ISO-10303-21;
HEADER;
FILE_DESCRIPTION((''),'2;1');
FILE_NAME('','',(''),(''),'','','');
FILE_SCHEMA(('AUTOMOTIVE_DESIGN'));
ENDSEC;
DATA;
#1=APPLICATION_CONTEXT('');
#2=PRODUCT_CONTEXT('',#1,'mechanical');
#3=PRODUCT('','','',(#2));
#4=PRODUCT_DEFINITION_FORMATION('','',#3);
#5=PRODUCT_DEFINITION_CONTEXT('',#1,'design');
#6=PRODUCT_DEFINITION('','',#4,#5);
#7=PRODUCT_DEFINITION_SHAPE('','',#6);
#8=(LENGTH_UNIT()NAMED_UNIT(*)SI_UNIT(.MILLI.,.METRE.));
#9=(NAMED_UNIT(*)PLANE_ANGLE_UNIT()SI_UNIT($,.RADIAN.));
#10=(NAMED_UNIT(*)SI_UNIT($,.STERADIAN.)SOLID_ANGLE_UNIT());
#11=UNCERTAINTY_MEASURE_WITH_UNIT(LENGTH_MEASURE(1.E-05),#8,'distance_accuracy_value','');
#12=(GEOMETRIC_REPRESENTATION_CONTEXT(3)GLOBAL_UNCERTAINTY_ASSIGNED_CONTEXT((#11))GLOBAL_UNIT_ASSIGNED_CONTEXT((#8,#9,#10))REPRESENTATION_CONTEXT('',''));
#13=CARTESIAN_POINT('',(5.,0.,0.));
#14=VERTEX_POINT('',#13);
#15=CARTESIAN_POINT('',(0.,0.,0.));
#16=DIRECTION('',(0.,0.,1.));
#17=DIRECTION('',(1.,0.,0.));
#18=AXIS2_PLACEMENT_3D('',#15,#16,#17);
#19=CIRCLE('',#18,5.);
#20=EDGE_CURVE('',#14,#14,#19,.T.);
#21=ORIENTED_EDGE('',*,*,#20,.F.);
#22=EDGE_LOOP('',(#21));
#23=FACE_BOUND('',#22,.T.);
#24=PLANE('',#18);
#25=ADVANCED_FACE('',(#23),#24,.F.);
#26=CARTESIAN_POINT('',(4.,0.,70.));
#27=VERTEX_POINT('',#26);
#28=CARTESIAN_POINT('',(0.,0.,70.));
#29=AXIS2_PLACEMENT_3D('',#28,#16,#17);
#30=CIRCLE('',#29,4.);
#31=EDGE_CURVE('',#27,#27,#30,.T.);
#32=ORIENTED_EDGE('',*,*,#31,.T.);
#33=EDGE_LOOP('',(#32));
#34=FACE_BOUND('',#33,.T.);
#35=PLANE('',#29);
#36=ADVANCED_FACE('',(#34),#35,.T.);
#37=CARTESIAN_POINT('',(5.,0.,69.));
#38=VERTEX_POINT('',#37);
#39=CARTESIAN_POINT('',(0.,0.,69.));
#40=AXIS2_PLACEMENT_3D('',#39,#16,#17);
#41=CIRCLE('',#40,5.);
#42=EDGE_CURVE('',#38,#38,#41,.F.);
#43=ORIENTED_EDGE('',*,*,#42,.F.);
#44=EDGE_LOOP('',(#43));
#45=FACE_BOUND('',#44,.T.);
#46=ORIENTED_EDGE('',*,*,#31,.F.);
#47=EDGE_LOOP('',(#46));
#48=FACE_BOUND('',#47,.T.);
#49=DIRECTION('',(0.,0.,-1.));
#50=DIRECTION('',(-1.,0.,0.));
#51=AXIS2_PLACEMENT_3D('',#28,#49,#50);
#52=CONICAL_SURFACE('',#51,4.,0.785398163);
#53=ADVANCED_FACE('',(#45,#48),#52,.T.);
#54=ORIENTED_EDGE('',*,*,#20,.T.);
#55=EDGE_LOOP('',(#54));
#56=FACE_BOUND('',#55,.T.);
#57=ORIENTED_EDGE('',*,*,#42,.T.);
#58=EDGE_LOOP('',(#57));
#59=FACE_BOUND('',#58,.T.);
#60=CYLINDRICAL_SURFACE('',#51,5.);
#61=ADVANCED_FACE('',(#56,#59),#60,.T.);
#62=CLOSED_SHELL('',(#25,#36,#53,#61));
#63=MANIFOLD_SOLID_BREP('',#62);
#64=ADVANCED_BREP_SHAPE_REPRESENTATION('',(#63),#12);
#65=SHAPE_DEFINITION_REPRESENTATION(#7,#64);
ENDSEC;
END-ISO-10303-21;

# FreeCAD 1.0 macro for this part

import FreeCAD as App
import Part
import Sketcher


def edges_at(feature, points):
    """Names of the edges that pass closest to the given points."""
    edges = feature.Shape.Edges
    near = lambda p: min(range(len(edges)), key=lambda i: edges[i].distToShape(Part.Vertex(*p))[0])
    return sorted({f"Edge{near(p) + 1}" for p in points})

doc = App.newDocument("Part")
body = doc.addObject("PartDesign::Body", "Body")

# Sketch on XY plane
sketch1 = body.newObject("Sketcher::SketchObject", "Sketch")
sketch1.AttachmentSupport = (doc.getObject("XY_Plane"), [""])
sketch1.MapMode = "FlatFace"
sketch1.addGeometry(Part.Circle(App.Vector(0, 0, 0), App.Vector(0, 0, 1), 5), False)
sketch1.addConstraint([
    Sketcher.Constraint("Coincident", 0, 3, -1, 1),
    Sketcher.Constraint("Diameter", 0, 10.0),
])
pad1 = body.newObject("PartDesign::Pad", "Pad")
pad1.Profile = sketch1
pad1.Length = 70
doc.recompute()

chamfer = body.newObject("PartDesign::Chamfer", "Chamfer")
chamfer.Base = (pad1, edges_at(pad1, [(-5, 0, 70)]))
chamfer.Size = 1

doc.recompute()
